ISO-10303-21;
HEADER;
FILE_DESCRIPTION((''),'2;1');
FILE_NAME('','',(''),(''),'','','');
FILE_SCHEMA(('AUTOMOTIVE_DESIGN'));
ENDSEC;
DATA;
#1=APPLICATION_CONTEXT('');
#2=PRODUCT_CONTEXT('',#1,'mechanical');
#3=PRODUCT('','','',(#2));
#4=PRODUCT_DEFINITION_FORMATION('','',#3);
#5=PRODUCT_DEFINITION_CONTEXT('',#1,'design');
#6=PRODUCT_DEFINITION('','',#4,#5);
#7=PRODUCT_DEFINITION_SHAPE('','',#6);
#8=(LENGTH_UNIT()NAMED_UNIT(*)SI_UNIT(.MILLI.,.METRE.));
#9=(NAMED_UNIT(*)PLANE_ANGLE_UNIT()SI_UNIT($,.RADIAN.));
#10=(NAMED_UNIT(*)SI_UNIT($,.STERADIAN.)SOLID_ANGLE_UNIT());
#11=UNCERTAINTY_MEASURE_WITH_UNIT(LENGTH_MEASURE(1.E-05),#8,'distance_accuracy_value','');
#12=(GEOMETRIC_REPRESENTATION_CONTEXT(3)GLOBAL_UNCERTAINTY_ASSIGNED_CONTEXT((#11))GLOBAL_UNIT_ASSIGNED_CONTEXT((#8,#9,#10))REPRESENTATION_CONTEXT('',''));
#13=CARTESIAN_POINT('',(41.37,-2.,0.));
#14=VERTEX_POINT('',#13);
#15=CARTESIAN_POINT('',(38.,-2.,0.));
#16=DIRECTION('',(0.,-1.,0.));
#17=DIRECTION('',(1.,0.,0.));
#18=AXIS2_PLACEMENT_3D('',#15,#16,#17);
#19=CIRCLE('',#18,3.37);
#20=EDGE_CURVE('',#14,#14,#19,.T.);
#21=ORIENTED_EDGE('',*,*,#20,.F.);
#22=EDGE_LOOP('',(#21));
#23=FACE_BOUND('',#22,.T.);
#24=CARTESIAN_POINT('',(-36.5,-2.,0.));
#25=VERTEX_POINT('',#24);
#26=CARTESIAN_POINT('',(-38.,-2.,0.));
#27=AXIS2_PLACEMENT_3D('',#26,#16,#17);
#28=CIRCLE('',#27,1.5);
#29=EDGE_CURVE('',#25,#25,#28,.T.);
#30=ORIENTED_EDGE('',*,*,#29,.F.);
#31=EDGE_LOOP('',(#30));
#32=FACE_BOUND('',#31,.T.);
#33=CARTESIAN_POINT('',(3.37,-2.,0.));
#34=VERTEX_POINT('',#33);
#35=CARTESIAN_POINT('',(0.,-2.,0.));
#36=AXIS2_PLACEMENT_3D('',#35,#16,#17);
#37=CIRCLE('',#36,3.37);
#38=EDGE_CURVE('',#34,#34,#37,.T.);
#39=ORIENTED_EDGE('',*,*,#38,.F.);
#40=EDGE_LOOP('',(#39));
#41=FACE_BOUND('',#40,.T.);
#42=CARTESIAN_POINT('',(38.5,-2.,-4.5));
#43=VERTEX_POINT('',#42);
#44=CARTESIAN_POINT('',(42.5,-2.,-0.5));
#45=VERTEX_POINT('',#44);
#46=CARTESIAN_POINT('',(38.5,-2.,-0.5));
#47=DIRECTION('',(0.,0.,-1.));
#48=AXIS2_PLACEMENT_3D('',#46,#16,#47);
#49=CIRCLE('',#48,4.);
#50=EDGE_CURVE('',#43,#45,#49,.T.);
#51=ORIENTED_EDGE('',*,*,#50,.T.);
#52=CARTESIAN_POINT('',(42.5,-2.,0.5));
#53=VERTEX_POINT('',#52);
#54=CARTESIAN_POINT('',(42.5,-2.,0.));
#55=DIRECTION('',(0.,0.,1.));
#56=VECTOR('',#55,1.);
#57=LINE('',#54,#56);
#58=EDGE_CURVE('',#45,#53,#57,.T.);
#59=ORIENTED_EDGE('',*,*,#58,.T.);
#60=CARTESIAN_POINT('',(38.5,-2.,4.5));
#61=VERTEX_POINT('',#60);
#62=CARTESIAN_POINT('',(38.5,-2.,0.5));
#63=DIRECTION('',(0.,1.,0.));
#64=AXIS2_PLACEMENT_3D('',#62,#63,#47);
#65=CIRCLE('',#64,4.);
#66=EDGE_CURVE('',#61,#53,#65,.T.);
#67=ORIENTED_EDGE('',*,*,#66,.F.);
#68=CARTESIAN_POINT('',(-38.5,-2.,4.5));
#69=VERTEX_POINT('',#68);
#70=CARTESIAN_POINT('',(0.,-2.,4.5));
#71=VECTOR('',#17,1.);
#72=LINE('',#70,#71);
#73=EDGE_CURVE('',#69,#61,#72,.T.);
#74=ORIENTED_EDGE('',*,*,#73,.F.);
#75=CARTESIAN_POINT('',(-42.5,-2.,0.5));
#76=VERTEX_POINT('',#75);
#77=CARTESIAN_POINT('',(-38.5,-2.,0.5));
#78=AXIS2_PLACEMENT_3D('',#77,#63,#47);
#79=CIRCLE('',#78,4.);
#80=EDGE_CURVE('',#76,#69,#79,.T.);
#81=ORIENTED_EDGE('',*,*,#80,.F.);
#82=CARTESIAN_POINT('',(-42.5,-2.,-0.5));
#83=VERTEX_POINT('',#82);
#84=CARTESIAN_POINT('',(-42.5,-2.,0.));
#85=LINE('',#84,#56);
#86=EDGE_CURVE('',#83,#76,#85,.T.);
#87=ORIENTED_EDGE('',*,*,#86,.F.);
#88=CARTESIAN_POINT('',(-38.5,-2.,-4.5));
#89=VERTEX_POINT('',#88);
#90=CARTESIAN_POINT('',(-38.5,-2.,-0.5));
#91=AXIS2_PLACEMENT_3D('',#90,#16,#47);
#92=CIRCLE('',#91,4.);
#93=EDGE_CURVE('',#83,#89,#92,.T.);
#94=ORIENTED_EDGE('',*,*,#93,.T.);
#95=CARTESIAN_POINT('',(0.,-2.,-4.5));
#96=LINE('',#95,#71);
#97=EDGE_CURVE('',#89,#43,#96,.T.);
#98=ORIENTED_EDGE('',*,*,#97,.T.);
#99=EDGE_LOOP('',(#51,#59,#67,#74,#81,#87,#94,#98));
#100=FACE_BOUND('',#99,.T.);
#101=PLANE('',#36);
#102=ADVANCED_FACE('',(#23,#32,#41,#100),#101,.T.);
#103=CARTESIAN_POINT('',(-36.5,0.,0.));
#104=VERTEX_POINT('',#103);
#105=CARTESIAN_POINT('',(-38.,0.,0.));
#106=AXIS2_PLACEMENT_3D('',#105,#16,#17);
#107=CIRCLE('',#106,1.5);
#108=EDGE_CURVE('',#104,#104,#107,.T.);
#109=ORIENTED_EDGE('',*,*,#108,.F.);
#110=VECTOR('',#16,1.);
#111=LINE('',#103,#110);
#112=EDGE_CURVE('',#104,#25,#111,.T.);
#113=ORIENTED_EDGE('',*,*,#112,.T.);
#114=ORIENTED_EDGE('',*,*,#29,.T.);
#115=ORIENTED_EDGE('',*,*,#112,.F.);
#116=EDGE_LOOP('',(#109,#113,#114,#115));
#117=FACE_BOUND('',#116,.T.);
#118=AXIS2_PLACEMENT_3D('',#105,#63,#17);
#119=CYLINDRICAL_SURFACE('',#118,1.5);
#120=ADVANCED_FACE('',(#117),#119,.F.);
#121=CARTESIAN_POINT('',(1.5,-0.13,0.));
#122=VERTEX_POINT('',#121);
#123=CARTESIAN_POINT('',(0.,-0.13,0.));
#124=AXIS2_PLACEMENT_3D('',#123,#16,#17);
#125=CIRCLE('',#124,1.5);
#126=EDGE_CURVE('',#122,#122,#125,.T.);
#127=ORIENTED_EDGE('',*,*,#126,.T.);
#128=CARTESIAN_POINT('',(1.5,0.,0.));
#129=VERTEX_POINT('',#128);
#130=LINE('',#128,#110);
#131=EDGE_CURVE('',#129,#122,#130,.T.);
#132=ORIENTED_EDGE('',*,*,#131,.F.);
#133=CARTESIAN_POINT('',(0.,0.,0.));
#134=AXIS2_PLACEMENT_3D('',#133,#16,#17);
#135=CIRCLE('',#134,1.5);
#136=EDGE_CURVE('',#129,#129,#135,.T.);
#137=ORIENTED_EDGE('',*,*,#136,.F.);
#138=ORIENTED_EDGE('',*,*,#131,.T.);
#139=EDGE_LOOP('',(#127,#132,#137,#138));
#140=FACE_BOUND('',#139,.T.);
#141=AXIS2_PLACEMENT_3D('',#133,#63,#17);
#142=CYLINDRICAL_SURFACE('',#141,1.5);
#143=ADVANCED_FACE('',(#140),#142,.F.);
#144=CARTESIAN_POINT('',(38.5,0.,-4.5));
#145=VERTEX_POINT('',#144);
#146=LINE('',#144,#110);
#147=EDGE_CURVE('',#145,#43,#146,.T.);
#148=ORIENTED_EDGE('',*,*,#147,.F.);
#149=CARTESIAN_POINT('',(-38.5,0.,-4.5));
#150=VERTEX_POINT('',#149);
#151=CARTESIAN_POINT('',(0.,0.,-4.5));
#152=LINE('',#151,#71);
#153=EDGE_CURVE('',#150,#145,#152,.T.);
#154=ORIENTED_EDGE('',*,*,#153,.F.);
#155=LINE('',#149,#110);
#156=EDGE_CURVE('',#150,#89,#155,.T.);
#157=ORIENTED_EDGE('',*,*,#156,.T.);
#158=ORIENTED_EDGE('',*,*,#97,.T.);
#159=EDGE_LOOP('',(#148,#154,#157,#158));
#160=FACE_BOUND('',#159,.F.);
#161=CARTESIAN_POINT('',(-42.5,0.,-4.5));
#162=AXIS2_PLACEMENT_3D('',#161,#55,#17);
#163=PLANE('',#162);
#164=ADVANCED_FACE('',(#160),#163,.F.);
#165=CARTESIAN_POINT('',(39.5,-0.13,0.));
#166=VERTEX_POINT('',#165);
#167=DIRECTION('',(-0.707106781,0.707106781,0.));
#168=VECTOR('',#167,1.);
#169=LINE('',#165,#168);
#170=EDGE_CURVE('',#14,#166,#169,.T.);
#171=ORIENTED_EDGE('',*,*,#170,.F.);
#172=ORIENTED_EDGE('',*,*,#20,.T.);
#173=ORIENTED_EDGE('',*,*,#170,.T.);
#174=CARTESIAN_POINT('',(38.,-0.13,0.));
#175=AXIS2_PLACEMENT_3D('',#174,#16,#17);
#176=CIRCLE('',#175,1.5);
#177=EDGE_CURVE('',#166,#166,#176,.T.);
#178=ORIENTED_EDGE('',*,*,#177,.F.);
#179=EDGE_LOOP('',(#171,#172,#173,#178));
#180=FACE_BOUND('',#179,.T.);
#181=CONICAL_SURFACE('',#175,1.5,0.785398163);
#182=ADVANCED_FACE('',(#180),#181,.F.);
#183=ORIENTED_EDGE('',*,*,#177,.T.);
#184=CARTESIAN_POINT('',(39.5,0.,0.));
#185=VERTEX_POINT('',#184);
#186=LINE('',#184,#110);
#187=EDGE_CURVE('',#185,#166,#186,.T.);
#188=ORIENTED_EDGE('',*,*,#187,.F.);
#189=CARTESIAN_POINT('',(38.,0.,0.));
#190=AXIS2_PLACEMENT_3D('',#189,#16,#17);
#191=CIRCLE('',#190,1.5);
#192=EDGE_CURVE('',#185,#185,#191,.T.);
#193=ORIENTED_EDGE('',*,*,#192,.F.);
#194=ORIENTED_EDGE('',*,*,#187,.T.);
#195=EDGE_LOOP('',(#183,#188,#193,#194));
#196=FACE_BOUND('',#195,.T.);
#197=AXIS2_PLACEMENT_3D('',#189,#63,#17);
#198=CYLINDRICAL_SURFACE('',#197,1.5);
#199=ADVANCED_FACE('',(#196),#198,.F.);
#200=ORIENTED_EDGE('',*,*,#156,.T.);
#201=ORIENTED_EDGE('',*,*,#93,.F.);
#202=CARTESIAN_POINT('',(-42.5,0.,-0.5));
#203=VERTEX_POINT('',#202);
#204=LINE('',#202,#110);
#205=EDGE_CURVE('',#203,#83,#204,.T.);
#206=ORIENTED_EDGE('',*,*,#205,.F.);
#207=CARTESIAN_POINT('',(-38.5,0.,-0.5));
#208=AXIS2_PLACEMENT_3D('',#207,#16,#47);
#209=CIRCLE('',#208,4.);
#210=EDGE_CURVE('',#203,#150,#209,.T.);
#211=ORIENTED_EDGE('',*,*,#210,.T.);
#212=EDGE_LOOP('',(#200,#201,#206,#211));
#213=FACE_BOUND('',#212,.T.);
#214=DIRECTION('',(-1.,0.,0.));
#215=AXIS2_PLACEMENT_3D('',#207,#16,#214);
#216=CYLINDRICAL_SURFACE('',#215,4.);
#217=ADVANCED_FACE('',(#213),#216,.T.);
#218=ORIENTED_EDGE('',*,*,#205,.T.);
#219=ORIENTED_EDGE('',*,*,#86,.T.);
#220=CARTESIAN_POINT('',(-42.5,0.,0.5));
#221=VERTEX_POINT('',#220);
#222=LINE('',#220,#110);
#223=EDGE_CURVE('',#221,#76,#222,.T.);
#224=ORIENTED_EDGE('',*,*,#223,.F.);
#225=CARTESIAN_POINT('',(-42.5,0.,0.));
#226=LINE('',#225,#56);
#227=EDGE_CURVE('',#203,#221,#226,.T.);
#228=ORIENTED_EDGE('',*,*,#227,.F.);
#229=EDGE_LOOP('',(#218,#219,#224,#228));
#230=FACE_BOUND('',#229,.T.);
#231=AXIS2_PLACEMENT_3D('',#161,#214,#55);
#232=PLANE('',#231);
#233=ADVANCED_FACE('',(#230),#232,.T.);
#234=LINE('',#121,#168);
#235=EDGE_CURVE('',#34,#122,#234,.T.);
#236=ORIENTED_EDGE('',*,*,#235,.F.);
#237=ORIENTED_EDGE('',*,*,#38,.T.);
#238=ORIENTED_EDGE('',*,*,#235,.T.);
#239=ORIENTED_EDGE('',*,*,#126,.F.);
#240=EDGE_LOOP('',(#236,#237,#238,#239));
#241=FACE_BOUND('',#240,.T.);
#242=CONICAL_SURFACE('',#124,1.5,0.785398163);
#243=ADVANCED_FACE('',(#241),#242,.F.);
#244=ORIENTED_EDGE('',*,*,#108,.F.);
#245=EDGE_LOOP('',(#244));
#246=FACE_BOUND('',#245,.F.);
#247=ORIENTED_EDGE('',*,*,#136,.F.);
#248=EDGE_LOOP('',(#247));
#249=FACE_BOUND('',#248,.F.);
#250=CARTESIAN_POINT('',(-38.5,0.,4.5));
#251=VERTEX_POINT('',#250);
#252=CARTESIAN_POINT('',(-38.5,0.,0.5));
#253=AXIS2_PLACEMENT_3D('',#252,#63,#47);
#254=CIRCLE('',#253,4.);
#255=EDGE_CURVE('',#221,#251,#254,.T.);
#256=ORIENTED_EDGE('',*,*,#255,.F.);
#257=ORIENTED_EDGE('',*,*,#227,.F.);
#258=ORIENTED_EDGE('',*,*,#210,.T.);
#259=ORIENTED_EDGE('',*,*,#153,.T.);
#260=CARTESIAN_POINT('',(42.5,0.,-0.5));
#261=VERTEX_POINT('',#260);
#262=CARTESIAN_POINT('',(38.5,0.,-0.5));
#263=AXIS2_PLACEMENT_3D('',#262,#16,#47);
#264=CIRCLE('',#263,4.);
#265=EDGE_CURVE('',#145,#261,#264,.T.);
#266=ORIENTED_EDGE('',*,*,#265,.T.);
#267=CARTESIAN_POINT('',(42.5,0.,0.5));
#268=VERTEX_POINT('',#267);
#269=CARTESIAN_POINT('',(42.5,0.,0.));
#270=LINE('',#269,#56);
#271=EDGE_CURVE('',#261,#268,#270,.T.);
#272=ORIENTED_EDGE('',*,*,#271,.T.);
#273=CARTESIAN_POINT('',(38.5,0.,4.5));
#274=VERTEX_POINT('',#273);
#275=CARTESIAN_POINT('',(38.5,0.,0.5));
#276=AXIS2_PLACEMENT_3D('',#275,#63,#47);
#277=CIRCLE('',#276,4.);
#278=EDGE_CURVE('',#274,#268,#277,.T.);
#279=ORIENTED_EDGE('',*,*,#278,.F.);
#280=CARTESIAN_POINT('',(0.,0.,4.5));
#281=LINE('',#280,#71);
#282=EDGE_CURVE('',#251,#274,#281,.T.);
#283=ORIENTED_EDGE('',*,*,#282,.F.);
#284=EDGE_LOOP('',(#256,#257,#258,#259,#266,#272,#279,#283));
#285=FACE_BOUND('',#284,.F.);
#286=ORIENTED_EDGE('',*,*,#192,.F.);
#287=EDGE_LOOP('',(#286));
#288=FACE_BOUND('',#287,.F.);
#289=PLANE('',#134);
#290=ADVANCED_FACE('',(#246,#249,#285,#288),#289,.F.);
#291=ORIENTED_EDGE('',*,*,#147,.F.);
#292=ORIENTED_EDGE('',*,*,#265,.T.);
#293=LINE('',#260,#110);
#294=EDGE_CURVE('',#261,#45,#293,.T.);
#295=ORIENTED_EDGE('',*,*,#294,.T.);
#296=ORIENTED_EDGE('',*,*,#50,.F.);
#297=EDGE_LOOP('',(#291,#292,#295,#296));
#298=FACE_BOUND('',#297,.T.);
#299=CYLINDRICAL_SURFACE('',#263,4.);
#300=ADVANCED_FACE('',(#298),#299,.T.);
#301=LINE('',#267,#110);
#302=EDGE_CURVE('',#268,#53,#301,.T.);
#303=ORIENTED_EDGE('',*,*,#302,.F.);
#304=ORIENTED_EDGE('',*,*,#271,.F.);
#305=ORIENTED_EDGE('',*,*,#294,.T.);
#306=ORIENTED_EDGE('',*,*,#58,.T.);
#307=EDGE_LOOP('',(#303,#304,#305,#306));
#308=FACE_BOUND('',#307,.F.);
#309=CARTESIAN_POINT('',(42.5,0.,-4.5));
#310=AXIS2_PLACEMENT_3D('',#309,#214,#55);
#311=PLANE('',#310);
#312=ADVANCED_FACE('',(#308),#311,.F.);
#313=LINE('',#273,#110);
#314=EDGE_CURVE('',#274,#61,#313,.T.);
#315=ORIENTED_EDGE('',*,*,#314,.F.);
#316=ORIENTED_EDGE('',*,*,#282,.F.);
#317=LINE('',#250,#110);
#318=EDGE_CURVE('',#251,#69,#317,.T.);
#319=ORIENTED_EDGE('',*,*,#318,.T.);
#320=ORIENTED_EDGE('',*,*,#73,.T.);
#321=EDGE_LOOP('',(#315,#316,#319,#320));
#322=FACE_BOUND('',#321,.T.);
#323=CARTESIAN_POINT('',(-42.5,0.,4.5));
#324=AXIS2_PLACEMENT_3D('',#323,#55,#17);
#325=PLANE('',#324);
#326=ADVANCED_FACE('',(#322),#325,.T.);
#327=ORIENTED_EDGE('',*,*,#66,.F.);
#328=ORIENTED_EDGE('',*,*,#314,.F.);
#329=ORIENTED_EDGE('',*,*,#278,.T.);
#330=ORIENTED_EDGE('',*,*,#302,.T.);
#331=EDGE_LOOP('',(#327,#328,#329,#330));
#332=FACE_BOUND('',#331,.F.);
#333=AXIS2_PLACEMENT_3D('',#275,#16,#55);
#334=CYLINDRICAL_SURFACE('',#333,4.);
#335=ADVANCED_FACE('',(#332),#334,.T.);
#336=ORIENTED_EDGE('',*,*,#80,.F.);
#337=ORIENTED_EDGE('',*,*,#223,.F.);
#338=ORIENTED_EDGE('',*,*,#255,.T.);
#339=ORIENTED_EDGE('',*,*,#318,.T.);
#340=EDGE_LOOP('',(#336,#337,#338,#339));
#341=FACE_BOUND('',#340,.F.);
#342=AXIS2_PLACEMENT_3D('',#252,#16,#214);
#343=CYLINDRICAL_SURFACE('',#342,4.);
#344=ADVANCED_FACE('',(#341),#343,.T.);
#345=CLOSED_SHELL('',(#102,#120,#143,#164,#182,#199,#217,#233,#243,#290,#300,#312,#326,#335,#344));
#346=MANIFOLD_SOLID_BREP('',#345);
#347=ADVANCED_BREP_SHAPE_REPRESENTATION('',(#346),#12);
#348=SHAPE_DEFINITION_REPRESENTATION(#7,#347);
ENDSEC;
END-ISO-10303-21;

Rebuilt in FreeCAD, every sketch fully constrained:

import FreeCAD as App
import Part
import Sketcher
from FreeCAD import Vector
Q = App.Units.Quantity


def edges_at(feature, points):
    """Names of the edges that pass closest to the given points."""
    edges = feature.Shape.Edges
    near = lambda p: min(range(len(edges)), key=lambda i: edges[i].distToShape(Part.Vertex(*p))[0])
    return sorted({f"Edge{near(p) + 1}" for p in points})

doc = App.newDocument("Part")
body = doc.addObject("PartDesign::Body", "Body")

sketch1 = body.newObject("Sketcher::SketchObject", "Sketch")
sketch1.AttachmentSupport = (doc.getObject("XZ_Plane"), [""])
sketch1.MapMode = "FlatFace"
sketch1.addGeometry([
    Part.LineSegment(Vector(-42.5, 4.5, 0), Vector(-42.5, -4.5, 0)),
    Part.LineSegment(Vector(-42.5, -4.5, 0), Vector(42.5, -4.5, 0)),
    Part.LineSegment(Vector(42.5, -4.5, 0), Vector(42.5, 4.5, 0)),
    Part.LineSegment(Vector(42.5, 4.5, 0), Vector(-42.5, 4.5, 0)),
    Part.Circle(Vector(-38, 0, 0), Vector(0, 0, 1), 1.5),
    Part.Circle(Vector(0, 0, 0), Vector(0, 0, 1), 1.5),
    Part.Circle(Vector(38, 0, 0), Vector(0, 0, 1), 1.5),
], False)
sketch1.addConstraint([
    Sketcher.Constraint("Coincident", 0, 2, 1, 1),
    Sketcher.Constraint("Coincident", 1, 2, 2, 1),
    Sketcher.Constraint("Coincident", 2, 2, 3, 1),
    Sketcher.Constraint("Coincident", 3, 2, 0, 1),
    Sketcher.Constraint("Vertical", 0),
    Sketcher.Constraint("Horizontal", 1),
    Sketcher.Constraint("Vertical", 2),
    Sketcher.Constraint("Horizontal", 3),
    Sketcher.Constraint("Coincident", 5, 3, -1, 1),
    Sketcher.Constraint("Equal", 4, 5),
    Sketcher.Constraint("Equal", 5, 6),
    Sketcher.Constraint("Symmetric", 4, 3, 6, 3, -1, 1),
    Sketcher.Constraint("Symmetric", 0, 2, 2, 2, -1, 1),
    Sketcher.Constraint("PointOnObject", 4, 3, -1),
    Sketcher.Constraint("Diameter", 4, Q("3 mm")),
    Sketcher.Constraint("DistanceX", 1, 1, 1, 2, Q("85 mm")),
    Sketcher.Constraint("DistanceY", 0, 2, 0, 1, Q("9 mm")),
    Sketcher.Constraint("DistanceX", 4, 3, -1, 1, Q("38 mm")),
])
pad1 = body.newObject("PartDesign::Pad", "Pad")
pad1.Profile = sketch1
pad1.Length = 2
doc.recompute()

fillet = body.newObject("PartDesign::Fillet", "Fillet")
fillet.Base = (pad1, edges_at(pad1, [
    (-42.5, -1, 4.5),
    (-42.5, -1, -4.5),
    (42.5, -1, -4.5),
    (42.5, -1, 4.5),
]))
fillet.Radius = 4
doc.recompute()

chamfer = body.newObject("PartDesign::Chamfer", "Chamfer")
chamfer.Base = (fillet, edges_at(fillet, [(36.5, -2, 0), (-1.5, -2, 0)]))
chamfer.Size = 1.87

doc.recompute()
